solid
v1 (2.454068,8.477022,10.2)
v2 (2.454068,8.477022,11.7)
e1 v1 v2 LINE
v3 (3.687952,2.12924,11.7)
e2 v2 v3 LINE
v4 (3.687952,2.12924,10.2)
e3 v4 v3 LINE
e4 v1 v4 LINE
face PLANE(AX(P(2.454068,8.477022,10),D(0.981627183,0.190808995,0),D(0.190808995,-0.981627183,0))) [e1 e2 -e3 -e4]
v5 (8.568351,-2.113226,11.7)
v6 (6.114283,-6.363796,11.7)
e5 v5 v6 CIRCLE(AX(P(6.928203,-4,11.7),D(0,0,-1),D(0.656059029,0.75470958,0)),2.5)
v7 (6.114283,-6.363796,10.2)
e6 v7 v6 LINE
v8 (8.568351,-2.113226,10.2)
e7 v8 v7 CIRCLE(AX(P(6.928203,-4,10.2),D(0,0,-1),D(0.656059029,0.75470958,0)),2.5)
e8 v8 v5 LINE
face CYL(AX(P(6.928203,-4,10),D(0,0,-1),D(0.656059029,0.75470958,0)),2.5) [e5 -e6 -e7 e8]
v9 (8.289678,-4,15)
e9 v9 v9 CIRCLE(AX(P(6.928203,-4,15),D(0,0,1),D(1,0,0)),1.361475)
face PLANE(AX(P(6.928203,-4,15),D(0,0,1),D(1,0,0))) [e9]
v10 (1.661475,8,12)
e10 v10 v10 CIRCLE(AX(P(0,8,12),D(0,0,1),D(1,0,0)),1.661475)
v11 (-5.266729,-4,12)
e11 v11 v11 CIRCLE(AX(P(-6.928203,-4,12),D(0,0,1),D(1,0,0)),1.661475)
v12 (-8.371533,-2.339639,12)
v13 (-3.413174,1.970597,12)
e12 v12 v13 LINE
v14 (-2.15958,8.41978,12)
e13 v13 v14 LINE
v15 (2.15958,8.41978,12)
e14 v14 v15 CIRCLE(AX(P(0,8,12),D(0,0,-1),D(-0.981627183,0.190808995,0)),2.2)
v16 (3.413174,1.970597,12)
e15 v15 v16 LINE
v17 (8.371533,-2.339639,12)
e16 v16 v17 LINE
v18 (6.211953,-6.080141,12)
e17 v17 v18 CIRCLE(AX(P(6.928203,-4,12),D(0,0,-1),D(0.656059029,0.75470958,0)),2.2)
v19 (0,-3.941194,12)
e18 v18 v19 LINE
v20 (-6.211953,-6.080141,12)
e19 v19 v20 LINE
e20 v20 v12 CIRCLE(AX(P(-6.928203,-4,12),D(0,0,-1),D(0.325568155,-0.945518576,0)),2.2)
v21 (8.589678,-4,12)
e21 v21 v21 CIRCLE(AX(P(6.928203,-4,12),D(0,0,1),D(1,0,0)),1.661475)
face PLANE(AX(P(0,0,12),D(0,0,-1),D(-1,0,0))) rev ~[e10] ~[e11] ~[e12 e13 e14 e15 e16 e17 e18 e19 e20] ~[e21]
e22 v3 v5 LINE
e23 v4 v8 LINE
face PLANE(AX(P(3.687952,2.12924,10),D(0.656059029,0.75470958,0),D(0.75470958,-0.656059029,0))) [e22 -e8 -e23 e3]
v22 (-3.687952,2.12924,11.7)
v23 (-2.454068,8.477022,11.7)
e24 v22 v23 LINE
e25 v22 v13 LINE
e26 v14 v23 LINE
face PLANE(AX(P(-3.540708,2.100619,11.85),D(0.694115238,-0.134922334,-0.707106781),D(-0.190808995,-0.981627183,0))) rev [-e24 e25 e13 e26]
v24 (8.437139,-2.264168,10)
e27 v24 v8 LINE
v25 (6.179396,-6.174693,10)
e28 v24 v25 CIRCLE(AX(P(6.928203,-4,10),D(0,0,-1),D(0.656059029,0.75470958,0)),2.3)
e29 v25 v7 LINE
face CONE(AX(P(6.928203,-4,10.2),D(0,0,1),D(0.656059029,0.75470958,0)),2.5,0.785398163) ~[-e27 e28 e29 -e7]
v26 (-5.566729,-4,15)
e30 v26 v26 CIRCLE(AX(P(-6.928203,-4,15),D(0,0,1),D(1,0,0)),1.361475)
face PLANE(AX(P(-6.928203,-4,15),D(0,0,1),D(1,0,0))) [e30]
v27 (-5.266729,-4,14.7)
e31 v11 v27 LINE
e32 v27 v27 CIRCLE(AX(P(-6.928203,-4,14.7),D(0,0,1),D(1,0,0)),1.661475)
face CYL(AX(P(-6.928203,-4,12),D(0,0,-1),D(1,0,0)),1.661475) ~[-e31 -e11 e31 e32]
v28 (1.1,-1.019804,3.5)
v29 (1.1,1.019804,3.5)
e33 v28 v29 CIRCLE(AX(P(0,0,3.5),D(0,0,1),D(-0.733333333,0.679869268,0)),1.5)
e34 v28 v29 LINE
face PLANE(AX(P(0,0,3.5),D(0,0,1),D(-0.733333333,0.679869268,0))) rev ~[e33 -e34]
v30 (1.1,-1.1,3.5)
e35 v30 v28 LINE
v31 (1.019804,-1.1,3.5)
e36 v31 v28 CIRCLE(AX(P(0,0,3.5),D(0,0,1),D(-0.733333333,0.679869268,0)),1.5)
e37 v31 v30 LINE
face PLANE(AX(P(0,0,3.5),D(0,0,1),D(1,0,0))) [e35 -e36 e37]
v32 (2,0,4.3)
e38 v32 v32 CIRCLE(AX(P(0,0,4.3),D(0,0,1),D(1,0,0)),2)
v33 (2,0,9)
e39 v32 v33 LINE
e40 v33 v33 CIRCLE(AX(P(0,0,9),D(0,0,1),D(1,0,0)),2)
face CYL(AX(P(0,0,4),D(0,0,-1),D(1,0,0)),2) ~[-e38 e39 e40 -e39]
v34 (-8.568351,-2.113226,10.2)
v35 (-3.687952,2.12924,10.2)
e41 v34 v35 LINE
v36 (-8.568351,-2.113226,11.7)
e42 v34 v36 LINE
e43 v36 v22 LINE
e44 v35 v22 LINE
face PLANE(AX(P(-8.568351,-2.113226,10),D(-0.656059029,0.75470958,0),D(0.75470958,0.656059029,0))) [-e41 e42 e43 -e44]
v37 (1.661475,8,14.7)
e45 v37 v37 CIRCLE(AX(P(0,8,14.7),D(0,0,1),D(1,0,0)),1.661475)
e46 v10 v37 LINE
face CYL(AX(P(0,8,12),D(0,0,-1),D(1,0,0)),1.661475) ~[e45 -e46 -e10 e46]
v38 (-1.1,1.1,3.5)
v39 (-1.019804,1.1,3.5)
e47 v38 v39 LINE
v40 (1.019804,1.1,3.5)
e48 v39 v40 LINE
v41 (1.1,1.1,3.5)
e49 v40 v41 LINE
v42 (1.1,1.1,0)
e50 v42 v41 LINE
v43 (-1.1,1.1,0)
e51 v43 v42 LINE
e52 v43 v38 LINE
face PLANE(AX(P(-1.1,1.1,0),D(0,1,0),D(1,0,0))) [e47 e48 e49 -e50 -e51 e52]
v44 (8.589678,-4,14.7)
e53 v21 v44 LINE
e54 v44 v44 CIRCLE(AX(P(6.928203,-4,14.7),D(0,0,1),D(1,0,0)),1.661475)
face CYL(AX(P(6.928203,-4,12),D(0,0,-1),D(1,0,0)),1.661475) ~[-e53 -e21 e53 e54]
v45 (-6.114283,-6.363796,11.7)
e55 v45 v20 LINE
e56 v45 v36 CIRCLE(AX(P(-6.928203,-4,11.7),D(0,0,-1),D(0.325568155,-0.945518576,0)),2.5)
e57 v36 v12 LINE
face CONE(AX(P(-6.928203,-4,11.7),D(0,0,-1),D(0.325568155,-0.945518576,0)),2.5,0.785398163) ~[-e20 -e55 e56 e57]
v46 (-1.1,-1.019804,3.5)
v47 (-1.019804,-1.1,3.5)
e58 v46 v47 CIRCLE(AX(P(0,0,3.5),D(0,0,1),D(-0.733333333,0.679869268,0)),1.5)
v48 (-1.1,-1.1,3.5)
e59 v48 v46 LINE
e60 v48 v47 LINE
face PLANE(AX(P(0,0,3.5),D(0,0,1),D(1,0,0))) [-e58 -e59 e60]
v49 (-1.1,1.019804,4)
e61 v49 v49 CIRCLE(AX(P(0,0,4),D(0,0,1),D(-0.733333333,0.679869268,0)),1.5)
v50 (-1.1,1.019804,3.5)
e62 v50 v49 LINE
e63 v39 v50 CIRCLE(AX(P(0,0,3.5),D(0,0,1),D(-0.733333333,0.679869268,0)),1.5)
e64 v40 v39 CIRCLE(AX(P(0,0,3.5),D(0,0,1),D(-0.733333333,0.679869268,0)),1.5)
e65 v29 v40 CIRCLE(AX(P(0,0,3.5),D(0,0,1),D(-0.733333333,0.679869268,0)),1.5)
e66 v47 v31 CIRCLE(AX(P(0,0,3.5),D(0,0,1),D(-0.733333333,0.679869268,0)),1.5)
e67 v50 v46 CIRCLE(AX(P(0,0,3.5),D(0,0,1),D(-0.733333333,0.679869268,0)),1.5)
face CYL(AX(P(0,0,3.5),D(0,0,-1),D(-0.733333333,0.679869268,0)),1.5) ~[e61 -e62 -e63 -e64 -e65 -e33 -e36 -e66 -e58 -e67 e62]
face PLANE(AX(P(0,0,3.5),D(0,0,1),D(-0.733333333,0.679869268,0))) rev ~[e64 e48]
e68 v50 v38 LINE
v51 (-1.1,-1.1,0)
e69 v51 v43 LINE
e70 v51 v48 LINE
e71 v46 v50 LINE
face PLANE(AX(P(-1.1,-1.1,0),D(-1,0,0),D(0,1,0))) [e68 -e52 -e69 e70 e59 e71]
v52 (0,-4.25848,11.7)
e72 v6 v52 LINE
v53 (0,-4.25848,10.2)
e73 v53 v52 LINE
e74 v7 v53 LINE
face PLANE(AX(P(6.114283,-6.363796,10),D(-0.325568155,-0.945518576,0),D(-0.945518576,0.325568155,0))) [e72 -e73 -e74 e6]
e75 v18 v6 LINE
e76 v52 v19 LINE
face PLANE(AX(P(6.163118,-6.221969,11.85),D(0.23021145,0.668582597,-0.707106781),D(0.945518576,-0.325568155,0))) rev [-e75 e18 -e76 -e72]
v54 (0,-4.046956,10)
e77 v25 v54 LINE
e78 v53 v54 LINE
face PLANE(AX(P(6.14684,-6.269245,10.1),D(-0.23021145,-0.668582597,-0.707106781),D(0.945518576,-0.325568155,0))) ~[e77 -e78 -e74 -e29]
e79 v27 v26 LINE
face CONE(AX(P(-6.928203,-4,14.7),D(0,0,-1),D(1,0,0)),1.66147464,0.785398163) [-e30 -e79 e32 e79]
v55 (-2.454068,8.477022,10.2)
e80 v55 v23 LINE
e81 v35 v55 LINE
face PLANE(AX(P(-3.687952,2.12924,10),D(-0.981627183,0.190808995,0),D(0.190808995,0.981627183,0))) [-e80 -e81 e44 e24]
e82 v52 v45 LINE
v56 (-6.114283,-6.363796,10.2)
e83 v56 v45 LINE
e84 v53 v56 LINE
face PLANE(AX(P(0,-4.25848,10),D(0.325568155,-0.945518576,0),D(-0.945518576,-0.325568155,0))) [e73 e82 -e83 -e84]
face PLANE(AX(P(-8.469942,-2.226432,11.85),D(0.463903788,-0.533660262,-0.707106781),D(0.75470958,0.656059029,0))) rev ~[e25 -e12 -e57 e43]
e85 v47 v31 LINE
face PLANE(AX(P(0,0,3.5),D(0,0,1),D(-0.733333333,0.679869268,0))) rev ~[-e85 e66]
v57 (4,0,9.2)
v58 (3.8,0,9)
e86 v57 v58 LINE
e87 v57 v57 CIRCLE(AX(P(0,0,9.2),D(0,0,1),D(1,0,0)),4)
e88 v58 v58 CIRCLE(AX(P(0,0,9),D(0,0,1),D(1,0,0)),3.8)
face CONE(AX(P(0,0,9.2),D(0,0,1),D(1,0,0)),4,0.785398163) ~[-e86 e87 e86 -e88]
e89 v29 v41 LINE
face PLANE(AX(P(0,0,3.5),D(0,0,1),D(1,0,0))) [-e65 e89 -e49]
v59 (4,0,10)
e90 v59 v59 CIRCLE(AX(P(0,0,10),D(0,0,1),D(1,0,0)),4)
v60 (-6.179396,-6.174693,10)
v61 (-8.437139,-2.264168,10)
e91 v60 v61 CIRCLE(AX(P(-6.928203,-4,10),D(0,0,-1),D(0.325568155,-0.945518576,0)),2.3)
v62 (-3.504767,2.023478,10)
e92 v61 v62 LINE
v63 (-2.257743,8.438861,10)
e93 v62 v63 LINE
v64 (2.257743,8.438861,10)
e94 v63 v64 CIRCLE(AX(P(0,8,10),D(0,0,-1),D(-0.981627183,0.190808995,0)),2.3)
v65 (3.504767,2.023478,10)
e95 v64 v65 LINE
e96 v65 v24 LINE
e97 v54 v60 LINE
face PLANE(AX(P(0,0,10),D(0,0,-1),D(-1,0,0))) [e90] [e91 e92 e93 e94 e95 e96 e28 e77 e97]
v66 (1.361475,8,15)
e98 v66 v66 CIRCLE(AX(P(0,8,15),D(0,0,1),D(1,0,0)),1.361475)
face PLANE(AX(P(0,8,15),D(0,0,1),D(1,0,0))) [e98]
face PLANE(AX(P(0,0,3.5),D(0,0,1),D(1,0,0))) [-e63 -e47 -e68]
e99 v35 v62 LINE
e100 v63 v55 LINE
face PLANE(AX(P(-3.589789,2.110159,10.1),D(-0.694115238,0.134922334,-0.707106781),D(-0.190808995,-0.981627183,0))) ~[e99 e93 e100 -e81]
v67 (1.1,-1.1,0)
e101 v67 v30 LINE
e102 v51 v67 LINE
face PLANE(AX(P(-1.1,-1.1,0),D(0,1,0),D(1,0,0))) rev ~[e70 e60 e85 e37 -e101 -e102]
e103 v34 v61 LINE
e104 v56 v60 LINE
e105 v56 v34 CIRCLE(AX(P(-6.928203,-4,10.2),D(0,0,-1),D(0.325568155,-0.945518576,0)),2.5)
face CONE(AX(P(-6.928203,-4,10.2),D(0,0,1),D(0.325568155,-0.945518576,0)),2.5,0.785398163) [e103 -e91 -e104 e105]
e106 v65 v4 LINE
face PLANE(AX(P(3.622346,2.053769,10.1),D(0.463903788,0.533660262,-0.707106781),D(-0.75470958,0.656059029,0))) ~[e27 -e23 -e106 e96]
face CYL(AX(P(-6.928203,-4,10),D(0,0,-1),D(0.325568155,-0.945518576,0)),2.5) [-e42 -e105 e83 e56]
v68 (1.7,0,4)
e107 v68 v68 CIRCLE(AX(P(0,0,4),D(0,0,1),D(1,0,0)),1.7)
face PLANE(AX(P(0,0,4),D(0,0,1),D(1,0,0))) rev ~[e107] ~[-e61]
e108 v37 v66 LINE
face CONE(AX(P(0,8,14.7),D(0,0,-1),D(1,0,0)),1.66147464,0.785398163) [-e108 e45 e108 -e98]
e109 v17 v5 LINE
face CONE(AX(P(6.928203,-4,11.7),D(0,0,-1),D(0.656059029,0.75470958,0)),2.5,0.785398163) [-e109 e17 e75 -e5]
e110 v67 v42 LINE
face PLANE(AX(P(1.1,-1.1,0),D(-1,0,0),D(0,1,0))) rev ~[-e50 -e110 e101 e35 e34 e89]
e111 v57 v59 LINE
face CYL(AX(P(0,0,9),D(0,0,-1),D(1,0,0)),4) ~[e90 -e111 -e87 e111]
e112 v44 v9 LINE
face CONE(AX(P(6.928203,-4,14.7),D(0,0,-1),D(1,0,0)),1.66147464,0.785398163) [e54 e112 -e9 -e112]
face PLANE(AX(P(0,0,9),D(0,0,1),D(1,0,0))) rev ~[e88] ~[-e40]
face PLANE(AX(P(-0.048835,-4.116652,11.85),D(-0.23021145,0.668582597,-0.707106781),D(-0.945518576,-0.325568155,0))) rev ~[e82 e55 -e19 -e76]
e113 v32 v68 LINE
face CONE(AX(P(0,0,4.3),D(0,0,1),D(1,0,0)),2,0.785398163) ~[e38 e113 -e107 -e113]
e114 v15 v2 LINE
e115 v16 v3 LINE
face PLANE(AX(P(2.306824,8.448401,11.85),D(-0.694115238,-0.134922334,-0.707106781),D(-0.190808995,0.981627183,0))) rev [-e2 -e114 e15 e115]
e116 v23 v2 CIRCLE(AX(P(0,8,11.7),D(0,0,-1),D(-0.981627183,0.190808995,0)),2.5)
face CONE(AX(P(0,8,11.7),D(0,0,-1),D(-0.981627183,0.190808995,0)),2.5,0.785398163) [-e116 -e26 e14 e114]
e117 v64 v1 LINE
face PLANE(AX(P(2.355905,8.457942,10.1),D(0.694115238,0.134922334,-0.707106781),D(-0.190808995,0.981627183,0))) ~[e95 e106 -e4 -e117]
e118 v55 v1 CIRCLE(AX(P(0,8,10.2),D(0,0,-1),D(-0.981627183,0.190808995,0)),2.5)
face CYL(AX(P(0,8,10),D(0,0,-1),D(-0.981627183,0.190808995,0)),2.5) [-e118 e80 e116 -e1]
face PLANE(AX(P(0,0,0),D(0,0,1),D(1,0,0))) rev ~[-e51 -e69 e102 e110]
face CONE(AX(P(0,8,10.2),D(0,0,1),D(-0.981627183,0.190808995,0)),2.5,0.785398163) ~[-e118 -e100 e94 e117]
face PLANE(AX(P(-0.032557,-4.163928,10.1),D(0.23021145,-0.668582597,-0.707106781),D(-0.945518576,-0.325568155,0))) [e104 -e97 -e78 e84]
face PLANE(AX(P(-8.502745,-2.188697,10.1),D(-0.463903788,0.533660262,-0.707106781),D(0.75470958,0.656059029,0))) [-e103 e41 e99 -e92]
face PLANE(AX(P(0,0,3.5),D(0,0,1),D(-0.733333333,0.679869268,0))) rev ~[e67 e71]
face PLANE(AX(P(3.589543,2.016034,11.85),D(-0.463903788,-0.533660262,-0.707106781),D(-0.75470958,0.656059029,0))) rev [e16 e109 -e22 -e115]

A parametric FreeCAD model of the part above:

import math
import FreeCAD as App
import Part
import Sketcher
from FreeCAD import Vector
Q = App.Units.Quantity


def edges_at(feature, points):
    """Names of the edges that pass closest to the given points."""
    edges = feature.Shape.Edges
    near = lambda p: min(range(len(edges)), key=lambda i: edges[i].distToShape(Part.Vertex(*p))[0])
    return sorted({f"Edge{near(p) + 1}" for p in points})

doc = App.newDocument("Part")
params = doc.addObject("Spreadsheet::Sheet", "Params")
for row, (alias, value) in enumerate([
    ("sketch1_width", "2.2 mm"),
    ("pad1_length", "3.5 mm"),
    ("sketch2_diameter", "3 mm"),
    ("pad2_length", "0.5 mm"),
    ("sketch3_diameter", "4 mm"),
    ("pad3_length", "5 mm"),
    ("sketch4_diameter", "8 mm"),
    ("pad4_length", "1 mm"),
    ("sketch5_radius", "2.5 mm"),
    ("pad5_length", "2 mm"),
    ("pad6_length", "3 mm"),
    ("chamfer_size", "0.2 mm"),
    ("chamfer2_size", "0.3 mm"),
], start=1):
    params.set(f"A{row}", alias)
    params.set(f"B{row}", "=" + value)
    params.setAlias(f"B{row}", alias)

body = doc.addObject("PartDesign::Body", "Body")

# Sketch on XY plane
sketch1 = body.newObject("Sketcher::SketchObject", "Sketch")
sketch1.AttachmentSupport = (doc.getObject("XY_Plane"), [""])
sketch1.MapMode = "FlatFace"
sketch1.addGeometry([
    Part.LineSegment(Vector(-1.1, 1.1, 0), Vector(-1.1, -1.1, 0)),
    Part.LineSegment(Vector(-1.1, -1.1, 0), Vector(1.1, -1.1, 0)),
    Part.LineSegment(Vector(1.1, -1.1, 0), Vector(1.1, 1.1, 0)),
    Part.LineSegment(Vector(1.1, 1.1, 0), Vector(-1.1, 1.1, 0)),
], False)
sketch1.addConstraint([
    Sketcher.Constraint("Coincident", 0, 2, 1, 1),
    Sketcher.Constraint("Coincident", 1, 2, 2, 1),
    Sketcher.Constraint("Coincident", 2, 2, 3, 1),
    Sketcher.Constraint("Coincident", 3, 2, 0, 1),
    Sketcher.Constraint("Vertical", 0),
    Sketcher.Constraint("Horizontal", 1),
    Sketcher.Constraint("Vertical", 2),
    Sketcher.Constraint("Horizontal", 3),
    Sketcher.Constraint("Symmetric", 0, 2, 2, 2, -1, 1),
    Sketcher.Constraint("Equal", 3, 0),
    Sketcher.Constraint("DistanceX", 1, 1, 1, 2, 2.2),
])
sketch1.setExpression("Constraints[10]", "Params.sketch1_width")
pad1 = body.newObject("PartDesign::Pad", "Pad")
pad1.Profile = sketch1
pad1.setExpression("Length", "Params.pad1_length")

# Sketch on XY plane
sketch2 = body.newObject("Sketcher::SketchObject", "Sketch001")
sketch2.AttachmentSupport = (doc.getObject("XY_Plane"), [""])
sketch2.MapMode = "FlatFace"
sketch2.AttachmentOffset = App.Placement(Vector(0, 0, 3.5), App.Rotation())
sketch2.addGeometry(Part.Circle(Vector(0, 0, 0), Vector(0, 0, 1), 1.5), False)
sketch2.addConstraint([
    Sketcher.Constraint("Coincident", 0, 3, -1, 1),
    Sketcher.Constraint("Diameter", 0, 3.0),
])
sketch2.setExpression("Constraints[1]", "Params.sketch2_diameter")
pad2 = body.newObject("PartDesign::Pad", "Pad001")
pad2.Profile = sketch2
pad2.setExpression("Length", "Params.pad2_length")

# Sketch on XY plane
sketch3 = body.newObject("Sketcher::SketchObject", "Sketch002")
sketch3.AttachmentSupport = (doc.getObject("XY_Plane"), [""])
sketch3.MapMode = "FlatFace"
sketch3.AttachmentOffset = App.Placement(Vector(0, 0, 4), App.Rotation())
sketch3.addGeometry(Part.Circle(Vector(0, 0, 0), Vector(0, 0, 1), 2), False)
sketch3.addConstraint([
    Sketcher.Constraint("Coincident", 0, 3, -1, 1),
    Sketcher.Constraint("Diameter", 0, 4.0),
])
sketch3.setExpression("Constraints[1]", "Params.sketch3_diameter")
pad3 = body.newObject("PartDesign::Pad", "Pad002")
pad3.Profile = sketch3
pad3.setExpression("Length", "Params.pad3_length")

# Sketch on XY plane
sketch4 = body.newObject("Sketcher::SketchObject", "Sketch003")
sketch4.AttachmentSupport = (doc.getObject("XY_Plane"), [""])
sketch4.MapMode = "FlatFace"
sketch4.AttachmentOffset = App.Placement(Vector(0, 0, 9), App.Rotation())
sketch4.addGeometry(Part.Circle(Vector(0, 0, 0), Vector(0, 0, 1), 4), False)
sketch4.addConstraint([
    Sketcher.Constraint("Coincident", 0, 3, -1, 1),
    Sketcher.Constraint("Diameter", 0, 8.0),
])
sketch4.setExpression("Constraints[1]", "Params.sketch4_diameter")
pad4 = body.newObject("PartDesign::Pad", "Pad003")
pad4.Profile = sketch4
pad4.setExpression("Length", "Params.pad4_length")

# Sketch on XY plane
sketch5 = body.newObject("Sketcher::SketchObject", "Sketch004")
sketch5.AttachmentSupport = (doc.getObject("XY_Plane"), [""])
sketch5.MapMode = "FlatFace"
sketch5.AttachmentOffset = App.Placement(Vector(0, 0, 10), App.Rotation())
sketch5.addGeometry([
    Part.LineSegment(Vector(-2.5, 8.5, 0), Vector(-3.7, 2.1, 0)),  # 0
    Part.LineSegment(Vector(-3.7, 2.1, 0), Vector(-8.6, -2.1, 0)),  # 1
    Part.ArcOfCircle(Part.Circle(Vector(-6.9, -4, 0), Vector(0, 0, 1), 2.5), math.radians(131), math.radians(289)),  # 2
    Part.LineSegment(Vector(-6.1, -6.4, 0), Vector(0, -4.3, 0)),  # 3
    Part.LineSegment(Vector(0, -4.3, 0), Vector(6.1, -6.4, 0)),  # 4
    Part.ArcOfCircle(Part.Circle(Vector(6.9, -4, 0), Vector(0, 0, 1), 2.5), math.radians(-109), math.radians(49)),  # 5
    Part.LineSegment(Vector(8.6, -2.1, 0), Vector(3.7, 2.1, 0)),  # 6
    Part.LineSegment(Vector(3.7, 2.1, 0), Vector(2.5, 8.5, 0)),  # 7
    Part.ArcOfCircle(Part.Circle(Vector(0, 8, 0), Vector(0, 0, 1), 2.5), math.radians(11), math.radians(169)),  # 8
], False)
sketch5.addConstraint([
    Sketcher.Constraint("Coincident", 0, 2, 1, 1),
    Sketcher.Constraint("Tangent", 1, 2, 2, 1),
    Sketcher.Constraint("Tangent", 2, 2, 3, 1),
    Sketcher.Constraint("Coincident", 3, 2, 4, 1),
    Sketcher.Constraint("Tangent", 4, 2, 5, 1),
    Sketcher.Constraint("Tangent", 5, 2, 6, 1),
    Sketcher.Constraint("Coincident", 6, 2, 7, 1),
    Sketcher.Constraint("Tangent", 7, 2, 8, 1),
    Sketcher.Constraint("Tangent", 8, 2, 0, 1),
    Sketcher.Constraint("Equal", 2, 5),
    Sketcher.Constraint("Equal", 5, 8),
    Sketcher.Constraint("Symmetric", 2, 3, 5, 3, -2),
    Sketcher.Constraint("Symmetric", 0, 2, 6, 2, -2),
    Sketcher.Constraint("PointOnObject", 8, 3, -2),
    Sketcher.Constraint("PointOnObject", 3, 2, -2),
    Sketcher.Constraint("Equal", 0, 1),
    Sketcher.Constraint("Equal", 1, 3),
    Sketcher.Constraint("Radius", 2, 2.5),
    Sketcher.Constraint("Angle", 0, Q("-101 deg")),
    Sketcher.Constraint("Angle", 1, Q("-139 deg")),
    Sketcher.Constraint("DistanceY", 2, 3, -1, 1, 4.0),
    Sketcher.Constraint("DistanceY", -1, 1, 8, 3, 8.0),
])
sketch5.setExpression("Constraints[17]", "Params.sketch5_radius")
pad5 = body.newObject("PartDesign::Pad", "Pad004")
pad5.Profile = sketch5
pad5.setExpression("Length", "Params.pad5_length")

# Sketch on XY plane
sketch6 = body.newObject("Sketcher::SketchObject", "Sketch005")
sketch6.AttachmentSupport = (doc.getObject("XY_Plane"), [""])
sketch6.MapMode = "FlatFace"
sketch6.AttachmentOffset = App.Placement(Vector(0, 0, 12), App.Rotation())
sketch6.addGeometry([
    Part.Circle(Vector(0, 8, 0), Vector(0, 0, 1), 1.7),
    Part.Circle(Vector(6.9, -4, 0), Vector(0, 0, 1), 1.7),
    Part.Circle(Vector(-6.9, -4, 0), Vector(0, 0, 1), 1.7),
], False)
sketch6.addConstraint([
    Sketcher.Constraint("Equal", 0, 1),
    Sketcher.Constraint("Equal", 1, 2),
    Sketcher.Constraint("Symmetric", 1, 3, 2, 3, -2),
    Sketcher.Constraint("PointOnObject", 0, 3, -2),
    Sketcher.Constraint("DistanceY", -1, 1, 0, 3, 8.0),
    Sketcher.Constraint("DistanceY", 1, 3, -1, 1, 4.0),
    Sketcher.Constraint("Diameter", 0, 3.322949),
    Sketcher.Constraint("DistanceX", -1, 1, 1, 3, 6.928203),
])
pad6 = body.newObject("PartDesign::Pad", "Pad005")
pad6.Profile = sketch6
pad6.setExpression("Length", "Params.pad6_length")
doc.recompute()

chamfer = body.newObject("PartDesign::Chamfer", "Chamfer")
chamfer.Base = (pad6, edges_at(pad6, [
    (-4, 0, 9),
    (-6.128, 0.008, 10),
    (-9.093, -5.25, 10),
    (-3.057, -5.311, 10),
    (3.057, -5.311, 10),
    (9.093, -5.25, 10),
    (6.128, 0.008, 10),
    (3.071, 5.303, 10),
    (0, 10.5, 10),
    (-3.071, 5.303, 10),
]))
chamfer.setExpression("Size", "Params.chamfer_size")
doc.recompute()

chamfer2 = body.newObject("PartDesign::Chamfer", "Chamfer001")
chamfer2.Base = (chamfer, edges_at(chamfer, [
    (-2, 0, 4),
    (-6.128, 0.008, 12),
    (-9.093, -5.25, 12),
    (-3.057, -5.311, 12),
    (3.057, -5.311, 12),
    (9.093, -5.25, 12),
    (6.128, 0.008, 12),
    (3.071, 5.303, 12),
    (0, 10.5, 12),
    (-3.071, 5.303, 12),
    (-1.661, 8, 15),
    (5.267, -4, 15),
    (-8.59, -4, 15),
]))
chamfer2.setExpression("Size", "Params.chamfer2_size")

doc.recompute()
